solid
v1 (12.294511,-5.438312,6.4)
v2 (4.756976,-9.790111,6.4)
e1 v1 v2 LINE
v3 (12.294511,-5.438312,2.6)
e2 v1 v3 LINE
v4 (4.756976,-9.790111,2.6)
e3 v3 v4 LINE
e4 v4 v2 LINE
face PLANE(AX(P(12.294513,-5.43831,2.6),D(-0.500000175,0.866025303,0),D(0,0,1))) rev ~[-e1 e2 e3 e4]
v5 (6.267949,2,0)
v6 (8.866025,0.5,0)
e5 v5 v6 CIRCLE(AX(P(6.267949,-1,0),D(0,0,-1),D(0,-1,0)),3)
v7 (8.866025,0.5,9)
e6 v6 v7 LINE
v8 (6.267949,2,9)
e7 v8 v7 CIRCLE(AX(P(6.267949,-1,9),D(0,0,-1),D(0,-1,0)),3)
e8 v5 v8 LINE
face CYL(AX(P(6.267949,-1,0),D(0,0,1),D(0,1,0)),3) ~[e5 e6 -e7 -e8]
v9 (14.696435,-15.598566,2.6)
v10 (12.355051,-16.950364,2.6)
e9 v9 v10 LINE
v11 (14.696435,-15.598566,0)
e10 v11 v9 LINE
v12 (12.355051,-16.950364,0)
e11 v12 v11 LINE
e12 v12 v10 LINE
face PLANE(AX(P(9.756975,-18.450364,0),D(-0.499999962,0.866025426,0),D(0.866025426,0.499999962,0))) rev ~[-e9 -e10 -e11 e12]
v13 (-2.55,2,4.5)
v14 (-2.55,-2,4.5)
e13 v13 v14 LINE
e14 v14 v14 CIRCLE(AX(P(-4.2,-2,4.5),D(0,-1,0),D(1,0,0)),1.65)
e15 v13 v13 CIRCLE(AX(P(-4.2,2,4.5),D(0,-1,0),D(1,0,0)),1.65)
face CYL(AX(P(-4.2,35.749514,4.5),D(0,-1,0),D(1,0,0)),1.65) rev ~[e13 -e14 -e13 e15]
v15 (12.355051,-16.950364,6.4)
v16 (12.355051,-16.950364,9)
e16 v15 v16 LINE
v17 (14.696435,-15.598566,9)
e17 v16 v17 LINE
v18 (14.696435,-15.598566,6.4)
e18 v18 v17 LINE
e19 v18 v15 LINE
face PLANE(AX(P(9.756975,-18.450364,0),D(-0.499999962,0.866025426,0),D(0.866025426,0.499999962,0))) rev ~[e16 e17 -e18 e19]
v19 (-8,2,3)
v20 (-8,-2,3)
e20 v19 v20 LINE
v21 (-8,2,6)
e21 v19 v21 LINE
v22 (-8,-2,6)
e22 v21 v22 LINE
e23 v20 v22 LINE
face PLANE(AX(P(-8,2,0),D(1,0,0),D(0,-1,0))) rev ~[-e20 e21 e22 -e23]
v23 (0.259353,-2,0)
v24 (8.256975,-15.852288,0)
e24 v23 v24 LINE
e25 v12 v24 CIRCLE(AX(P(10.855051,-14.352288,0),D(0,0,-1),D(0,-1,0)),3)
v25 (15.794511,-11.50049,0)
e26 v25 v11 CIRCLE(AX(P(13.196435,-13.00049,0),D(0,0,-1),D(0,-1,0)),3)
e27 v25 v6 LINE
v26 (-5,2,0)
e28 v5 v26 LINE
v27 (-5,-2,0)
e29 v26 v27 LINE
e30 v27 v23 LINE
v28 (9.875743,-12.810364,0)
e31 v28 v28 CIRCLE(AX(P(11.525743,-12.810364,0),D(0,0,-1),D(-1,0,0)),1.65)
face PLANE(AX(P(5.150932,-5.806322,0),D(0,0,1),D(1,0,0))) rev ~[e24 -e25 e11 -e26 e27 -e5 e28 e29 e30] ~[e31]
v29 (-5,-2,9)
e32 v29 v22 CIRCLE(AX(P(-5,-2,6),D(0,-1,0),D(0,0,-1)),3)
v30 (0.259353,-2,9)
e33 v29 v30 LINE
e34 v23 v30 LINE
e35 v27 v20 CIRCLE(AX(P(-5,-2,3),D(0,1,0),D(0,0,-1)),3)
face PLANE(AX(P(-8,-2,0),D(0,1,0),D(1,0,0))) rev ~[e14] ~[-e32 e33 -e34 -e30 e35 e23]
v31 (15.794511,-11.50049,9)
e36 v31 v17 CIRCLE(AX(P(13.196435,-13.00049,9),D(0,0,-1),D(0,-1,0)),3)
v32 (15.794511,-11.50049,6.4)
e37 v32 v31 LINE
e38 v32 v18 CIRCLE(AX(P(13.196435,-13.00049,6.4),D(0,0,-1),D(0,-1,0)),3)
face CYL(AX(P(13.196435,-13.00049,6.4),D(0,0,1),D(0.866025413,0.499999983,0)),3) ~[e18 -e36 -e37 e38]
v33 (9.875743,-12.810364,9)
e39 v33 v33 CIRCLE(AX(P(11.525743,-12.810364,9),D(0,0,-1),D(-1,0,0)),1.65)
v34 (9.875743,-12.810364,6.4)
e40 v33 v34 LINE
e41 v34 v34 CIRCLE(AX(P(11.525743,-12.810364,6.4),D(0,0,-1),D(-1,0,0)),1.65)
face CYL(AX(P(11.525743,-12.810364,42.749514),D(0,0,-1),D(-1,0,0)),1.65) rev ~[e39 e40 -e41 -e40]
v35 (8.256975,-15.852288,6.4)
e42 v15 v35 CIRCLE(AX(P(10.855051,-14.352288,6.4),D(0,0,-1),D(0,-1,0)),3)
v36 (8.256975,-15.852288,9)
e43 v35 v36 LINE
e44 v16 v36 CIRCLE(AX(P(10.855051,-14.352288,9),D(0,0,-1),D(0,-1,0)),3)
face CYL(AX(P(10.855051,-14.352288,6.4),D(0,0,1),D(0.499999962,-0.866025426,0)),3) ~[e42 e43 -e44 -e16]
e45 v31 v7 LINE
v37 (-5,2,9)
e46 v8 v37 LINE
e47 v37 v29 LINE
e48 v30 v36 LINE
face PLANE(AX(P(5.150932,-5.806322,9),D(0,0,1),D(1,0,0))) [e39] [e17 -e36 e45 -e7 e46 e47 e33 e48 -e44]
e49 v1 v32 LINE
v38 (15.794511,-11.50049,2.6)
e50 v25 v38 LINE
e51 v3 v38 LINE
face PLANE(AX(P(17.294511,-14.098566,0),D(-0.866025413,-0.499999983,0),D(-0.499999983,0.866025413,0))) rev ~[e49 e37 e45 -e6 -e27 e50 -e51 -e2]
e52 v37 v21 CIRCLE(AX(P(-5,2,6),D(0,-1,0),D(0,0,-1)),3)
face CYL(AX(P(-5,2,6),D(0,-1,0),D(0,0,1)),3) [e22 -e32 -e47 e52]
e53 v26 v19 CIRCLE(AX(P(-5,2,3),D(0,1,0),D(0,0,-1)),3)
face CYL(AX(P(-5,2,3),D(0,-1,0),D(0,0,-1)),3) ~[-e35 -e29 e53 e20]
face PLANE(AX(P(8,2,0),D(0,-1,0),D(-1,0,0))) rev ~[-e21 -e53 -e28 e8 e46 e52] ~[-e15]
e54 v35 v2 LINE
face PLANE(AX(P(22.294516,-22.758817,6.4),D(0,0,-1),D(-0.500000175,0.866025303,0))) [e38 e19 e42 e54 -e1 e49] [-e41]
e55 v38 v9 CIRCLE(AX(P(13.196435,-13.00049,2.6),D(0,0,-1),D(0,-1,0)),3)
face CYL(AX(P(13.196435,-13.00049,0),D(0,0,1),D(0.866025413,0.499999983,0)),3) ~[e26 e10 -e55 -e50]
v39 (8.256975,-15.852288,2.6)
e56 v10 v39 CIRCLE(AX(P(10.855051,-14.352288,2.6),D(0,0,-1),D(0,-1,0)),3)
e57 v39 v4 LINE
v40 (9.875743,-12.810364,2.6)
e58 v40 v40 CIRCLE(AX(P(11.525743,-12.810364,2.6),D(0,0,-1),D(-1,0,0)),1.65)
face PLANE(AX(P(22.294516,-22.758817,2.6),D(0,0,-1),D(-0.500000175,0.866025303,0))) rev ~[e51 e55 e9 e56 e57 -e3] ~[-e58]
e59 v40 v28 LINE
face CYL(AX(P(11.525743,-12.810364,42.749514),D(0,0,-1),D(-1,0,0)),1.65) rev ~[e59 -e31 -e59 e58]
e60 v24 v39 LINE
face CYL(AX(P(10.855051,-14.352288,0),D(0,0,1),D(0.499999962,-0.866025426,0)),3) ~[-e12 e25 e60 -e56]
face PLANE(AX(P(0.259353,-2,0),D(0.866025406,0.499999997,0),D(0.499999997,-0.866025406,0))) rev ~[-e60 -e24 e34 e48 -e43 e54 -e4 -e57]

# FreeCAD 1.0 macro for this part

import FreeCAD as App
import Part
import Sketcher
from FreeCAD import Vector
Q = App.Units.Quantity


def edges_at(feature, points):
    """Names of the edges that pass closest to the given points."""
    edges = feature.Shape.Edges
    near = lambda p: min(range(len(edges)), key=lambda i: edges[i].distToShape(Part.Vertex(*p))[0])
    return sorted({f"Edge{near(p) + 1}" for p in points})


def add_polygon(sketch, points):
    """Adds a closed chain of lines whose ends are joined by coincident constraints."""
    first, n = sketch.GeometryCount, len(points)
    for a, b in zip(points, points[1:] + points[:1]):
        sketch.addGeometry(Part.LineSegment(App.Vector(*a, 0), App.Vector(*b, 0)), False)
    for i in range(n):
        sketch.addConstraint(Sketcher.Constraint("Coincident", first + i, 2, first + (i + 1) % n, 1))

doc = App.newDocument("Part")
body = doc.addObject("PartDesign::Body", "Body")

sketch1 = doc.addObject("Sketcher::SketchObject", "Sketch")
body.addObject(sketch1)
sketch1.AttachmentSupport = (doc.XY_Plane, [""])
sketch1.MapMode = "FlatFace"
add_polygon(sketch1, [(8, 2), (-8, 2), (-8, -2), (0.259353, -2), (9.756975, -18.450364), (17.294511, -14.098566)])
sketch1.addConstraint(Sketcher.Constraint("Horizontal", 0))
sketch1.addConstraint(Sketcher.Constraint("Vertical", 1))
sketch1.addConstraint(Sketcher.Constraint("Horizontal", 2))
sketch1.addConstraint(Sketcher.Constraint("Symmetric", 1, 2, 5, 2, -1, 1))
sketch1.addConstraint(Sketcher.Constraint("Perpendicular", 3, 4))
sketch1.addConstraint(Sketcher.Constraint("Perpendicular", 4, 5))
sketch1.addConstraint(Sketcher.Constraint("DistanceX", 0, 2, 0, 1, 16.0))
sketch1.addConstraint(Sketcher.Constraint("DistanceY", 1, 2, 1, 1, 4.0))
sketch1.addConstraint(Sketcher.Constraint("Angle", 3, Q("-60 deg")))
sketch1.addConstraint(Sketcher.Constraint("DistanceY", 3, 2, 4, 2, 4.351798))
sketch1.addConstraint(Sketcher.Constraint("DistanceX", -1, 1, 4, 2, 17.294511))
pad1 = doc.addObject("PartDesign::Pad", "Pad")
body.addObject(pad1)
pad1.Profile = sketch1
pad1.Length = 9

sketch2 = doc.addObject("Sketcher::SketchObject", "Sketch001")
body.addObject(sketch2)
sketch2.Placement = App.Placement(Vector(6.866025, 3.964102, 0), App.Rotation(Vector(-0.500000175, 0.866025303, 0), Vector(0, 0, 1), Vector(0.866025303, 0.500000175, 0), "ZXY"))
add_polygon(sketch2, [(-30.856972, 6.4), (-30.856972, 2.6), (-10.856972, 2.6), (-10.856972, 6.4)])
sketch2.addConstraint(Sketcher.Constraint("Vertical", 0))
sketch2.addConstraint(Sketcher.Constraint("Horizontal", 1))
sketch2.addConstraint(Sketcher.Constraint("Vertical", 2))
sketch2.addConstraint(Sketcher.Constraint("Horizontal", 3))
sketch2.addConstraint(Sketcher.Constraint("DistanceX", 1, 1, 1, 2, 20.0))
sketch2.addConstraint(Sketcher.Constraint("DistanceY", 0, 2, 0, 1, 3.8))
sketch2.addConstraint(Sketcher.Constraint("DistanceY", -1, 1, 0, 2, 2.6))
sketch2.addConstraint(Sketcher.Constraint("DistanceX", 0, 2, -1, 1, 30.856972))
pocket1 = doc.addObject("PartDesign::Pocket", "Pocket")
body.addObject(pocket1)
pocket1.Profile = sketch2
pocket1.Length = 25

sketch3 = doc.addObject("Sketcher::SketchObject", "Sketch002")
body.addObject(sketch3)
sketch3.AttachmentSupport = (doc.XY_Plane, [""])
sketch3.MapMode = "FlatFace"
sketch3.AttachmentOffset = App.Placement(Vector(0, 0, 9), App.Rotation())
sketch3.addGeometry(Part.Circle(Vector(11.525743, -12.810364, 0), Vector(0, 0, 1), 1.65), False)
sketch3.addConstraint(Sketcher.Constraint("Diameter", 0, 3.3))
sketch3.addConstraint(Sketcher.Constraint("DistanceX", -1, 1, 0, 3, 11.525743))
sketch3.addConstraint(Sketcher.Constraint("DistanceY", 0, 3, -1, 1, 12.810364))
doc.recompute()
hole = doc.addObject("PartDesign::Hole", "Hole")
body.addObject(hole)
hole.Profile = sketch3
hole.ThreadType = "None"
hole.Diameter = 3.3
hole.DepthType = "ThroughAll"

sketch4 = doc.addObject("Sketcher::SketchObject", "Sketch003")
body.addObject(sketch4)
sketch4.AttachmentSupport = (doc.XZ_Plane, [""])
sketch4.MapMode = "FlatFace"
sketch4.AttachmentOffset = App.Placement(Vector(0, 0, -2), App.Rotation())
sketch4.addGeometry(Part.Circle(Vector(-4.2, 4.5, 0), Vector(0, 0, 1), 1.65), False)
sketch4.addConstraint(Sketcher.Constraint("Diameter", 0, 3.3))
sketch4.addConstraint(Sketcher.Constraint("DistanceX", 0, 3, -1, 1, 4.2))
sketch4.addConstraint(Sketcher.Constraint("DistanceY", -1, 1, 0, 3, 4.5))
doc.recompute()
hole2 = doc.addObject("PartDesign::Hole", "Hole001")
body.addObject(hole2)
hole2.Profile = sketch4
hole2.ThreadType = "None"
hole2.Diameter = 3.3
hole2.DepthType = "ThroughAll"
hole2.Reversed = True
doc.recompute()

fillet = doc.addObject("PartDesign::Fillet", "Fillet")
body.addObject(fillet)
fillet.Base = (hole2, edges_at(hole2, [
    (-8, 0, 9),
    (-8, 0, 0),
    (8, 2, 4.5),
    (17.295, -14.099, 7.7),
    (17.295, -14.099, 1.3),
    (9.757, -18.45, 7.7),
    (9.757, -18.45, 1.3),
]))
fillet.Radius = 3

doc.recompute()
